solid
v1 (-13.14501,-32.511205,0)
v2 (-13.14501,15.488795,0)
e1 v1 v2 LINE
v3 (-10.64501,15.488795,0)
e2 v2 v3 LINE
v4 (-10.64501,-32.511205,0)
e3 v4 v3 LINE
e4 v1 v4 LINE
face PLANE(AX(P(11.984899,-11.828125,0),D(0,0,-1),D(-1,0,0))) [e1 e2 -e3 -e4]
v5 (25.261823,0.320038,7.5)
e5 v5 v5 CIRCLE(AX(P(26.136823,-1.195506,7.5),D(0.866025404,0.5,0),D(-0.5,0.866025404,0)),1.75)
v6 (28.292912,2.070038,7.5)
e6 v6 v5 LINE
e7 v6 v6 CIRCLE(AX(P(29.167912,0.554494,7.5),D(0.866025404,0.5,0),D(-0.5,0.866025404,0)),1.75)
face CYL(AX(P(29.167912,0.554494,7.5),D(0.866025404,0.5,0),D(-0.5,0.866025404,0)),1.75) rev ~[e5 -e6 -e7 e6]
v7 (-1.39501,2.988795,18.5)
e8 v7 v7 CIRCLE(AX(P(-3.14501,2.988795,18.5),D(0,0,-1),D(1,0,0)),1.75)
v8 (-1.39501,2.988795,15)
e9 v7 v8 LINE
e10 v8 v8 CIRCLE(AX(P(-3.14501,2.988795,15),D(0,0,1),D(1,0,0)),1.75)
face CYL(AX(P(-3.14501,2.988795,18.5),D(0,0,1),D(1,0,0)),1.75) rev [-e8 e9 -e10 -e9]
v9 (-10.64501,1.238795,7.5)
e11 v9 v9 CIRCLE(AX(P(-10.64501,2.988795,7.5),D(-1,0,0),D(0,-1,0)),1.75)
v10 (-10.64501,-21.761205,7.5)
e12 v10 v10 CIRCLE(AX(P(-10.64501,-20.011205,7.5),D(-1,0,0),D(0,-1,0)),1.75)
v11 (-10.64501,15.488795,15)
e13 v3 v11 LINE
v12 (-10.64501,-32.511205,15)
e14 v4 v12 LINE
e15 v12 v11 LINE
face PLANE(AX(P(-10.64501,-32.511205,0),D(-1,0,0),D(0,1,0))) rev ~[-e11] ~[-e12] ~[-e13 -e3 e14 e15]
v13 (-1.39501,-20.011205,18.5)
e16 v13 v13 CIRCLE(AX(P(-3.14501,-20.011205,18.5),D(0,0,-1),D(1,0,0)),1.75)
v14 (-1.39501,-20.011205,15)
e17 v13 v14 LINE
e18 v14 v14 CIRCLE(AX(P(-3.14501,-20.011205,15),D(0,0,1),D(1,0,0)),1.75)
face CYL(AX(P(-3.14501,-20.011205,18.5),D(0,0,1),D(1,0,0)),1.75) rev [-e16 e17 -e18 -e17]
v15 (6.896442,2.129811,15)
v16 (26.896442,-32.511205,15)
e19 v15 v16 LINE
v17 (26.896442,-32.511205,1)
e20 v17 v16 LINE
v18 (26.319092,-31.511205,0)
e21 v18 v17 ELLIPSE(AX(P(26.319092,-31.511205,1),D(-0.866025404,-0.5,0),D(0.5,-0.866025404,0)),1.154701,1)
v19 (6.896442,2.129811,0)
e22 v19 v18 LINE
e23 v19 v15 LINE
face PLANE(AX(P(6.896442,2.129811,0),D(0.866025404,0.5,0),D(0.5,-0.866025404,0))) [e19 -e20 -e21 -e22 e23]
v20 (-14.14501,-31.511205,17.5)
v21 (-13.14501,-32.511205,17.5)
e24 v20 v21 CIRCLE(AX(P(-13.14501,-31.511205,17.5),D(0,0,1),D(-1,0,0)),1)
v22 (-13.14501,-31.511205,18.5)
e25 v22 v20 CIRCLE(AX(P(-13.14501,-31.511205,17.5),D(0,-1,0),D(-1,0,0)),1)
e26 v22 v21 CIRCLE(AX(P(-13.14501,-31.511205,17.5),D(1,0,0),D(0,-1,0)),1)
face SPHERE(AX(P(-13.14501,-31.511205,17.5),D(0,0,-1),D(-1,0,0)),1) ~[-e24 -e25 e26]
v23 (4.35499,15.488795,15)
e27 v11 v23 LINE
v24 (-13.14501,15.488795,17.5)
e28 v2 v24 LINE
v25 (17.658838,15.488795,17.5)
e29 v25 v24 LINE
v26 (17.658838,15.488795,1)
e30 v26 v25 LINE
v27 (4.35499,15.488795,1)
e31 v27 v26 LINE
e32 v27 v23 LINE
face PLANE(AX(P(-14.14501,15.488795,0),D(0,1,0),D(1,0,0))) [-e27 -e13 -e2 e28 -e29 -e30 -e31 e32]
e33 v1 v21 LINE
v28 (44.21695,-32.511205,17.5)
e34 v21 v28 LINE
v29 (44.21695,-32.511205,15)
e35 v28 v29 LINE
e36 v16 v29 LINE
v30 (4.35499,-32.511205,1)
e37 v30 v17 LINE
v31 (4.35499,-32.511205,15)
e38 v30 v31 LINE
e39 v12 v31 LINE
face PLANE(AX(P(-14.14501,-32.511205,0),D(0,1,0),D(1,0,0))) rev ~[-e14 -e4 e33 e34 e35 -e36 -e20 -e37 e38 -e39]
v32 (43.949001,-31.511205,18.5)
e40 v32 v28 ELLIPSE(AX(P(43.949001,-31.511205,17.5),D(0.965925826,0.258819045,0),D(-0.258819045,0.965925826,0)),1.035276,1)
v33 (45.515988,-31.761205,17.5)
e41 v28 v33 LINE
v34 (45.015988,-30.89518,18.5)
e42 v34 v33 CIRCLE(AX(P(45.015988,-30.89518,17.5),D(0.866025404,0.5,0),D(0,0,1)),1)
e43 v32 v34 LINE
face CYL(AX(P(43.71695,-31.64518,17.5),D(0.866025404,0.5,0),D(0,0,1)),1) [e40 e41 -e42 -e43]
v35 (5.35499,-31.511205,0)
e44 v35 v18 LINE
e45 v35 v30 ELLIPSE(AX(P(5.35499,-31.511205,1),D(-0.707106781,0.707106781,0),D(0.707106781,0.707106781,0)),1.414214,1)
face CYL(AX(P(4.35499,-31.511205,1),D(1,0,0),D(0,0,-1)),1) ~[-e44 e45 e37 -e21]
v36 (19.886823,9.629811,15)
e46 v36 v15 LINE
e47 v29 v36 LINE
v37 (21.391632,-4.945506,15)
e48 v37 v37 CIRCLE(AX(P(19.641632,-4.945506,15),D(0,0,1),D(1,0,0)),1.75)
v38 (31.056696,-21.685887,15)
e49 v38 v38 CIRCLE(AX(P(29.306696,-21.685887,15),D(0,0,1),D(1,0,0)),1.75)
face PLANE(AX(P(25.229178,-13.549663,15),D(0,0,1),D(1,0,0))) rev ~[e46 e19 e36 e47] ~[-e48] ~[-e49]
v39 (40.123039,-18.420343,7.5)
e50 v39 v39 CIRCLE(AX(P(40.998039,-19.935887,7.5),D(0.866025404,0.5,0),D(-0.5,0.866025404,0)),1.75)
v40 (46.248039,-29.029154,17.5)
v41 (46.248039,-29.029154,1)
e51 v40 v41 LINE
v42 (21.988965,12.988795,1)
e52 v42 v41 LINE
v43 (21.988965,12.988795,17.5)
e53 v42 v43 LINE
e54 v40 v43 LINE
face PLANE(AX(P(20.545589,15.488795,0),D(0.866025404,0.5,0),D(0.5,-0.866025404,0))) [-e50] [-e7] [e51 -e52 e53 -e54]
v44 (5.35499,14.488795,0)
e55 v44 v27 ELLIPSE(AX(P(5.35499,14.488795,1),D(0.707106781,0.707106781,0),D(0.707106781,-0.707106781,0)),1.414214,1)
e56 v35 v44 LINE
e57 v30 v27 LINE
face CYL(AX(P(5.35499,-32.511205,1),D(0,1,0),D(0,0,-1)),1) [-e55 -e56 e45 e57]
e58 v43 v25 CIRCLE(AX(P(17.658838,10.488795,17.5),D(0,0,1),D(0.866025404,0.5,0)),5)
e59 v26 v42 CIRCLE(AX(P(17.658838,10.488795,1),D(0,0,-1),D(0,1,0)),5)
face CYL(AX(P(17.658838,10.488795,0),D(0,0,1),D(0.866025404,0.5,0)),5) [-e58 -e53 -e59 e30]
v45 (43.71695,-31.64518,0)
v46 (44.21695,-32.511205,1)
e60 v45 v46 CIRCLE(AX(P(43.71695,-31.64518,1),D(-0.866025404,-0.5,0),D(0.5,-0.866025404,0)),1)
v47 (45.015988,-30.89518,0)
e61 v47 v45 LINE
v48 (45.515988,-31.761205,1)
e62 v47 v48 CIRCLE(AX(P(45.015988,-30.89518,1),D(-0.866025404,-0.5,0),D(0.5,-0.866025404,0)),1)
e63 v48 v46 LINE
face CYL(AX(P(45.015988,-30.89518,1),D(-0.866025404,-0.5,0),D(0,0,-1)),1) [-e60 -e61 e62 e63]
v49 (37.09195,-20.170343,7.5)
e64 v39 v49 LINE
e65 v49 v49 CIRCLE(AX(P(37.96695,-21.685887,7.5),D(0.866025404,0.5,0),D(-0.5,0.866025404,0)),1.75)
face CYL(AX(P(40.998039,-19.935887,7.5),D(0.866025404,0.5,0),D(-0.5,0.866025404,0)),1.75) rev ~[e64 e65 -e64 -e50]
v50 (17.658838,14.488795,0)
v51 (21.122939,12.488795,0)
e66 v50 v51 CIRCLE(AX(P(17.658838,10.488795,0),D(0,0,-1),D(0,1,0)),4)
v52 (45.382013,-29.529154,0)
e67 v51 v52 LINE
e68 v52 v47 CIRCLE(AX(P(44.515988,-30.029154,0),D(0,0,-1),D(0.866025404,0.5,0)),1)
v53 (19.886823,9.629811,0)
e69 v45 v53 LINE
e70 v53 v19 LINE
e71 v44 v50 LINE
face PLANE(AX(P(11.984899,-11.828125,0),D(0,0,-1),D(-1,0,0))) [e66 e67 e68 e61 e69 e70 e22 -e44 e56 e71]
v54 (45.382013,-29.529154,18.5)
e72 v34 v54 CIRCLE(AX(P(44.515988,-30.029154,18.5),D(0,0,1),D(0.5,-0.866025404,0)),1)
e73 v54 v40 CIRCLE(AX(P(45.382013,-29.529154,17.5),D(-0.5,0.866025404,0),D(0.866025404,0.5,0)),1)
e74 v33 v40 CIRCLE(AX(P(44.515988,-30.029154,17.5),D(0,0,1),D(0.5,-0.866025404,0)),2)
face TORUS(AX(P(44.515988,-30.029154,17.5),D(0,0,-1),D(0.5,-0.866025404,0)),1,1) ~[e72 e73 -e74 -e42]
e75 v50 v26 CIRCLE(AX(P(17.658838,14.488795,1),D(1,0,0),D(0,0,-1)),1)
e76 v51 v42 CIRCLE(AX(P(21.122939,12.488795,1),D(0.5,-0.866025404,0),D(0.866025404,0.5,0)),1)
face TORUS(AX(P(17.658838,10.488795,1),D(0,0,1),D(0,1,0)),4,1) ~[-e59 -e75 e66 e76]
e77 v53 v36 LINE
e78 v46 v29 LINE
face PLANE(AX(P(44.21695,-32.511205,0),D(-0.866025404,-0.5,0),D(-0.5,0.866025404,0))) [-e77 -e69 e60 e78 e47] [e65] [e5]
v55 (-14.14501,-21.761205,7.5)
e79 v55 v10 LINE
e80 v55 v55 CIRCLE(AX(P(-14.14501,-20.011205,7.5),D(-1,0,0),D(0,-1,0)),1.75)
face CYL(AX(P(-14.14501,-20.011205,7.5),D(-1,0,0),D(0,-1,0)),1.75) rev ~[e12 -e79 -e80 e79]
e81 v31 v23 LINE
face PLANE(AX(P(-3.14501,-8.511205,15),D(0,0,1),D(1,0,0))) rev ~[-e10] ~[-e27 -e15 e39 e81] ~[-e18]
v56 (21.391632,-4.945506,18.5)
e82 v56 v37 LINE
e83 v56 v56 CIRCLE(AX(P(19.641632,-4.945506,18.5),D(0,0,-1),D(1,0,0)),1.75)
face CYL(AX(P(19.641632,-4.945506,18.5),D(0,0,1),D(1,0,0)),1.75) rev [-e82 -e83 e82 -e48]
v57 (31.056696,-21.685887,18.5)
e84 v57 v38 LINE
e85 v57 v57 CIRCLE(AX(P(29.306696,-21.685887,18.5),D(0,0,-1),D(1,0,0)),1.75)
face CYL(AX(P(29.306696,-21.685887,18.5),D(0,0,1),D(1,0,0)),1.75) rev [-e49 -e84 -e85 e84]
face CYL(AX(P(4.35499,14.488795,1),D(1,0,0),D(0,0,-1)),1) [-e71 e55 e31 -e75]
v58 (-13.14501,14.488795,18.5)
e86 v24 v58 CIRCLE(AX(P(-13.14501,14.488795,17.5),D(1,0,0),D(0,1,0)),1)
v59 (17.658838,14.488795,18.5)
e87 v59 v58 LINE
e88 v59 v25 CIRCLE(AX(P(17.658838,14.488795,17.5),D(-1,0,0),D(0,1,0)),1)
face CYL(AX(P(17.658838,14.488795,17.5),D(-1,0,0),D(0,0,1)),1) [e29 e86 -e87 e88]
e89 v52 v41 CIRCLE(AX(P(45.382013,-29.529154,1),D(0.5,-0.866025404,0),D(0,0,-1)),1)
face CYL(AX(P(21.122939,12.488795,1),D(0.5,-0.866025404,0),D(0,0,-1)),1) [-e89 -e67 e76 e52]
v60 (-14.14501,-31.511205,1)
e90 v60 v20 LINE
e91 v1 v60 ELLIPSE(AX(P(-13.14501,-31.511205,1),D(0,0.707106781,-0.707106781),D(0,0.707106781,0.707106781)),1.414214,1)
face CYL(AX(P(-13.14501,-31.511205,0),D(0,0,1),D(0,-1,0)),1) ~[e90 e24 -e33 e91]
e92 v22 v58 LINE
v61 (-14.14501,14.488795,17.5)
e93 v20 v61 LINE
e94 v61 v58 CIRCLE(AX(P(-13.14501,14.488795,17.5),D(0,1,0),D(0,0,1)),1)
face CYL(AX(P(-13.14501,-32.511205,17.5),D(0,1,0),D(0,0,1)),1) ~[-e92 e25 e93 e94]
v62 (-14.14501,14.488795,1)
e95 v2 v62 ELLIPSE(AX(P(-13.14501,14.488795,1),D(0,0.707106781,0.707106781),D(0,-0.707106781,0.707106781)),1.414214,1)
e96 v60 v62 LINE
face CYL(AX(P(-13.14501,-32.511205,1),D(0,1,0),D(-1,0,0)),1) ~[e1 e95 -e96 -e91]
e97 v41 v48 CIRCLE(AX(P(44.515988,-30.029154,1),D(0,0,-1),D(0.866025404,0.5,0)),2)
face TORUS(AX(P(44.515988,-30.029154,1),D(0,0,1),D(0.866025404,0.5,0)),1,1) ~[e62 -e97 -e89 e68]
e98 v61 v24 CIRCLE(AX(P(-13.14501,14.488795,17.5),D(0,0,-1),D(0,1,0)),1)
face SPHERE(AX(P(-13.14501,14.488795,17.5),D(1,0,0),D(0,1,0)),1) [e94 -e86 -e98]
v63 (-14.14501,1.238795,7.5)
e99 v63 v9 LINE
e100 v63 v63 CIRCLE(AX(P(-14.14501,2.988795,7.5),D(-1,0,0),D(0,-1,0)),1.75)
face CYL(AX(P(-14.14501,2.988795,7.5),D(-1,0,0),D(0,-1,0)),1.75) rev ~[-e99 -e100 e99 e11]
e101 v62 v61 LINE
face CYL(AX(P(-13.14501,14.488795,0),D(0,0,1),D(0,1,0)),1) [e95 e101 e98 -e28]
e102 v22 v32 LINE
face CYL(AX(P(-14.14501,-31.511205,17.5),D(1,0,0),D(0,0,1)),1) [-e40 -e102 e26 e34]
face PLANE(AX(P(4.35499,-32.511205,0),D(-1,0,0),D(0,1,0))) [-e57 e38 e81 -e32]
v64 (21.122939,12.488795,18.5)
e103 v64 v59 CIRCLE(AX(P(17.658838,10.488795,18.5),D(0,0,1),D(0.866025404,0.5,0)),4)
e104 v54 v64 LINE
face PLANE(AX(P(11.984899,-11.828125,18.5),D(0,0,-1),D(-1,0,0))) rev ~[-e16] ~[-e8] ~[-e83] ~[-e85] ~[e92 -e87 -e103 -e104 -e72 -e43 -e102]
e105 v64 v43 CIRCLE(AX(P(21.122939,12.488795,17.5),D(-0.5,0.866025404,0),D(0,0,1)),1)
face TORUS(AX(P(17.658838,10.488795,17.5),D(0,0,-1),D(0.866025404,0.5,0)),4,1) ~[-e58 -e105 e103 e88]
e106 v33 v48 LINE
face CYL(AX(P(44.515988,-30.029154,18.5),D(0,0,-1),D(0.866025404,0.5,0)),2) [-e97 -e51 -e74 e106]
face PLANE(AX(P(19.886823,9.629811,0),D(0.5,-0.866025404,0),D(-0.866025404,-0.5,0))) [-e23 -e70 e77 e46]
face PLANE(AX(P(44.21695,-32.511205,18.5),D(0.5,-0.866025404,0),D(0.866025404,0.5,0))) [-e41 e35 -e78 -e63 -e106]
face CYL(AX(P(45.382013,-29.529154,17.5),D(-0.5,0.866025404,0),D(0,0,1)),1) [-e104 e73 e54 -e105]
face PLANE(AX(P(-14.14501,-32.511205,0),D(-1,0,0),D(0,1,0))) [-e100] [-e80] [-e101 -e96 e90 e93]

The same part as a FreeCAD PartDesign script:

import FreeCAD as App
import Part
import Sketcher

V = App.Vector
Q = App.Units.Quantity


def edges_at(feature, points):
    """Names of the edges that pass closest to the given points."""
    edges = feature.Shape.Edges
    near = lambda p: min(range(len(edges)), key=lambda i: edges[i].distToShape(Part.Vertex(*p))[0])
    return sorted({f"Edge{near(p) + 1}" for p in points})


def add_polygon(sketch, points):
    """Adds a closed chain of lines whose ends are joined by coincident constraints."""
    first, n = sketch.GeometryCount, len(points)
    for a, b in zip(points, points[1:] + points[:1]):
        sketch.addGeometry(Part.LineSegment(App.Vector(*a, 0), App.Vector(*b, 0)), False)
    for i in range(n):
        sketch.addConstraint(Sketcher.Constraint("Coincident", first + i, 2, first + (i + 1) % n, 1))

doc = App.newDocument("Part")
body = doc.addObject("PartDesign::Body", "Body")

sketch1 = body.newObject("Sketcher::SketchObject", "Sketch")
sketch1.AttachmentSupport = (doc.getObject("XY_Plane"), [""])
sketch1.MapMode = "FlatFace"
add_polygon(sketch1, [(48.258402, -32.511205), (20.545589, 15.488795), (-14.14501, 15.488795), (-14.14501, -32.511205)])
sketch1.addConstraint([
    Sketcher.Constraint("Horizontal", 1),
    Sketcher.Constraint("Vertical", 2),
    Sketcher.Constraint("Horizontal", 3),
    Sketcher.Constraint("DistanceY", 2, 2, 2, 1, Q("48 mm")),
    Sketcher.Constraint("Angle", 0, Q("120 deg")),
    Sketcher.Constraint("DistanceX", 1, 2, 1, 1, Q("34.690599 mm")),
    Sketcher.Constraint("DistanceX", -1, 1, 3, 2, Q("48.258402 mm")),
    Sketcher.Constraint("DistanceY", -1, 1, 0, 2, Q("15.488795 mm")),
])
pad1 = body.newObject("PartDesign::Pad", "Pad")
pad1.Profile = sketch1
pad1.Length = 18.5

sketch2 = body.newObject("Sketcher::SketchObject", "Sketch001")
sketch2.AttachmentSupport = (doc.getObject("XY_Plane"), [""])
sketch2.MapMode = "FlatFace"
add_polygon(sketch2, [(-10.64501, 15.488795), (-10.64501, -32.511205), (4.35499, -32.511205), (4.35499, 15.488795)])
add_polygon(sketch2, [(44.21695, -32.511205), (19.886823, 9.629811), (6.896442, 2.129811), (26.896442, -32.511205)])
sketch2.addConstraint([
    Sketcher.Constraint("Vertical", 0),
    Sketcher.Constraint("Horizontal", 1),
    Sketcher.Constraint("Vertical", 2),
    Sketcher.Constraint("Horizontal", 3),
    Sketcher.Constraint("Horizontal", 7),
    Sketcher.Constraint("Perpendicular", 4, 5),
    Sketcher.Constraint("Perpendicular", 5, 6),
    Sketcher.Constraint("Horizontal", 1, 2, 6, 2),
    Sketcher.Constraint("DistanceX", 1, 1, 1, 2, Q("15 mm")),
    Sketcher.Constraint("DistanceY", 0, 2, 0, 1, Q("48 mm")),
    Sketcher.Constraint("Angle", 4, Q("120 deg")),
    Sketcher.Constraint("Distance", 5, Q("15 mm")),
    Sketcher.Constraint("Distance", 6, Q("40 mm")),
    Sketcher.Constraint("DistanceX", 0, 2, -1, 1, Q("10.64501 mm")),
    Sketcher.Constraint("DistanceY", -1, 1, 4, 2, Q("9.629811 mm")),
    Sketcher.Constraint("DistanceX", -1, 1, 5, 2, Q("6.896442 mm")),
])
pocket1 = body.newObject("PartDesign::Pocket", "Pocket")
pocket1.Profile = sketch2
pocket1.Length = 15
pocket1.Reversed = True

sketch3 = body.newObject("Sketcher::SketchObject", "Sketch002")
sketch3.Placement = App.Placement(V(22.116037, 12.7687, 0), App.Rotation(V(0, 0, -1), V(-0.5, 0.866025404, 0), V(0.866025404, 0.5, 0), "ZXY"))
sketch3.addGeometry([
    Part.Circle(V(-7.5, -37.764004, 0), V(0, 0, 1), 1.75),
    Part.Circle(V(-7.5, -14.10375, 0), V(0, 0, 1), 1.75),
], False)
sketch3.addConstraint([
    Sketcher.Constraint("Equal", 0, 1),
    Sketcher.Constraint("Vertical", 0, 3, 1, 3),
    Sketcher.Constraint("Diameter", 0, Q("3.5 mm")),
    Sketcher.Constraint("DistanceX", 0, 3, -1, 1, Q("7.5 mm")),
    Sketcher.Constraint("DistanceY", 1, 3, -1, 1, Q("14.10375 mm")),
    Sketcher.Constraint("DistanceY", 0, 3, -1, 1, Q("37.764004 mm")),
])
pocket2 = body.newObject("PartDesign::Pocket", "Pocket001")
pocket2.Profile = sketch3
pocket2.Length = 3.5

sketch4 = body.newObject("Sketcher::SketchObject", "Sketch003")
sketch4.AttachmentSupport = (doc.getObject("XY_Plane"), [""])
sketch4.MapMode = "FlatFace"
sketch4.AttachmentOffset = App.Placement(V(0, 0, 18.5), App.Rotation())
sketch4.addGeometry([
    Part.Circle(V(29.306696, -21.685887, 0), V(0, 0, 1), 1.75),
    Part.Circle(V(19.641632, -4.945506, 0), V(0, 0, 1), 1.75),
    Part.Circle(V(-3.14501, 2.988795, 0), V(0, 0, 1), 1.75),
    Part.Circle(V(-3.14501, -20.011205, 0), V(0, 0, 1), 1.75),
], False)
sketch4.addConstraint([
    Sketcher.Constraint("Equal", 0, 1),
    Sketcher.Constraint("Equal", 1, 2),
    Sketcher.Constraint("Equal", 2, 3),
    Sketcher.Constraint("Vertical", 2, 3, 3, 3),
    Sketcher.Constraint("Diameter", 0, Q("3.5 mm")),
    Sketcher.Constraint("DistanceY", 3, 3, 2, 3, Q("23 mm")),
    Sketcher.Constraint("DistanceY", 1, 3, 2, 3, Q("7.934301 mm")),
    Sketcher.Constraint("DistanceX", 2, 3, -1, 1, Q("3.14501 mm")),
    Sketcher.Constraint("DistanceY", 0, 3, 1, 3, Q("16.740381 mm")),
    Sketcher.Constraint("DistanceX", -1, 1, 0, 3, Q("29.306696 mm")),
    Sketcher.Constraint("DistanceY", 0, 3, -1, 1, Q("21.685887 mm")),
    Sketcher.Constraint("DistanceX", -1, 1, 1, 3, Q("19.641632 mm")),
])
pocket3 = body.newObject("PartDesign::Pocket", "Pocket002")
pocket3.Profile = sketch4
pocket3.Length = 4

sketch5 = body.newObject("Sketcher::SketchObject", "Sketch004")
sketch5.AttachmentSupport = (doc.getObject("YZ_Plane"), [""])
sketch5.MapMode = "FlatFace"
sketch5.AttachmentOffset = App.Placement(V(0, 0, -14.14501), App.Rotation())
sketch5.addGeometry([
    Part.Circle(V(-20.011205, 7.5, 0), V(0, 0, 1), 1.75),
    Part.Circle(V(2.988795, 7.5, 0), V(0, 0, 1), 1.75),
], False)
sketch5.addConstraint([
    Sketcher.Constraint("Equal", 0, 1),
    Sketcher.Constraint("Horizontal", 0, 3, 1, 3),
    Sketcher.Constraint("Diameter", 0, Q("3.5 mm")),
    Sketcher.Constraint("DistanceX", 0, 3, 1, 3, Q("23 mm")),
    Sketcher.Constraint("DistanceY", -1, 1, 0, 3, Q("7.5 mm")),
    Sketcher.Constraint("DistanceX", 0, 3, -1, 1, Q("20.011205 mm")),
])
pocket4 = body.newObject("PartDesign::Pocket", "Pocket003")
pocket4.Profile = sketch5
pocket4.Length = 4
pocket4.Reversed = True

sketch6 = body.newObject("Sketcher::SketchObject", "Sketch005")
sketch6.AttachmentSupport = (doc.getObject("XY_Plane"), [""])
sketch6.MapMode = "FlatFace"
sketch6.AttachmentOffset = App.Placement(V(0, 0, 18.5), App.Rotation())
add_polygon(sketch6, [(47.248039, -30.761205), (44.21695, -32.511205), (48.258402, -32.511205)])
sketch6.addConstraint([
    Sketcher.Constraint("Horizontal", 1),
    Sketcher.Constraint("Perpendicular", 0, 2),
    Sketcher.Constraint("Angle", 0, Q("-150 deg")),
    Sketcher.Constraint("Distance", 0, Q("3.5 mm")),
    Sketcher.Constraint("DistanceX", -1, 1, 1, 2, Q("48.258402 mm")),
    Sketcher.Constraint("DistanceY", 0, 2, -1, 1, Q("32.511205 mm")),
])
pocket5 = body.newObject("PartDesign::Pocket", "Pocket004")
pocket5.Profile = sketch6
pocket5.Length = 19
doc.recompute()

fillet = body.newObject("PartDesign::Fillet", "Fillet")
fillet.Base = (pocket5, edges_at(pocket5, [(47.248, -30.761, 9.25)]))
fillet.Radius = 2
doc.recompute()

fillet2 = body.newObject("PartDesign::Fillet", "Fillet001")
fillet2.Base = (fillet, edges_at(fillet, [(20.546, 15.489, 9.25)]))
fillet2.Radius = 5
doc.recompute()

fillet3 = body.newObject("PartDesign::Fillet", "Fillet002")
fillet3.Base = (fillet2, edges_at(fillet2, [
    (44.866, -32.136, 0),
    (46.448, -30.547, 0),
    (11.007, 15.489, 0),
    (20.159, 14.819, 0),
    (44.866, -32.136, 18.5),
    (46.448, -30.547, 18.5),
    (1.757, 15.489, 18.5),
    (20.159, 14.819, 18.5),
    (-14.145, 15.489, 9.25),
    (-14.145, -32.511, 9.25),
    (-14.145, -8.511, 0),
    (15.626, -32.511, 0),
    (4.355, -8.511, 0),
    (34.119, -8.02, 0),
    (-14.145, -8.511, 18.5),
    (15.036, -32.511, 18.5),
    (34.119, -8.02, 18.5),
]))
fillet3.Radius = 1

doc.recompute()
